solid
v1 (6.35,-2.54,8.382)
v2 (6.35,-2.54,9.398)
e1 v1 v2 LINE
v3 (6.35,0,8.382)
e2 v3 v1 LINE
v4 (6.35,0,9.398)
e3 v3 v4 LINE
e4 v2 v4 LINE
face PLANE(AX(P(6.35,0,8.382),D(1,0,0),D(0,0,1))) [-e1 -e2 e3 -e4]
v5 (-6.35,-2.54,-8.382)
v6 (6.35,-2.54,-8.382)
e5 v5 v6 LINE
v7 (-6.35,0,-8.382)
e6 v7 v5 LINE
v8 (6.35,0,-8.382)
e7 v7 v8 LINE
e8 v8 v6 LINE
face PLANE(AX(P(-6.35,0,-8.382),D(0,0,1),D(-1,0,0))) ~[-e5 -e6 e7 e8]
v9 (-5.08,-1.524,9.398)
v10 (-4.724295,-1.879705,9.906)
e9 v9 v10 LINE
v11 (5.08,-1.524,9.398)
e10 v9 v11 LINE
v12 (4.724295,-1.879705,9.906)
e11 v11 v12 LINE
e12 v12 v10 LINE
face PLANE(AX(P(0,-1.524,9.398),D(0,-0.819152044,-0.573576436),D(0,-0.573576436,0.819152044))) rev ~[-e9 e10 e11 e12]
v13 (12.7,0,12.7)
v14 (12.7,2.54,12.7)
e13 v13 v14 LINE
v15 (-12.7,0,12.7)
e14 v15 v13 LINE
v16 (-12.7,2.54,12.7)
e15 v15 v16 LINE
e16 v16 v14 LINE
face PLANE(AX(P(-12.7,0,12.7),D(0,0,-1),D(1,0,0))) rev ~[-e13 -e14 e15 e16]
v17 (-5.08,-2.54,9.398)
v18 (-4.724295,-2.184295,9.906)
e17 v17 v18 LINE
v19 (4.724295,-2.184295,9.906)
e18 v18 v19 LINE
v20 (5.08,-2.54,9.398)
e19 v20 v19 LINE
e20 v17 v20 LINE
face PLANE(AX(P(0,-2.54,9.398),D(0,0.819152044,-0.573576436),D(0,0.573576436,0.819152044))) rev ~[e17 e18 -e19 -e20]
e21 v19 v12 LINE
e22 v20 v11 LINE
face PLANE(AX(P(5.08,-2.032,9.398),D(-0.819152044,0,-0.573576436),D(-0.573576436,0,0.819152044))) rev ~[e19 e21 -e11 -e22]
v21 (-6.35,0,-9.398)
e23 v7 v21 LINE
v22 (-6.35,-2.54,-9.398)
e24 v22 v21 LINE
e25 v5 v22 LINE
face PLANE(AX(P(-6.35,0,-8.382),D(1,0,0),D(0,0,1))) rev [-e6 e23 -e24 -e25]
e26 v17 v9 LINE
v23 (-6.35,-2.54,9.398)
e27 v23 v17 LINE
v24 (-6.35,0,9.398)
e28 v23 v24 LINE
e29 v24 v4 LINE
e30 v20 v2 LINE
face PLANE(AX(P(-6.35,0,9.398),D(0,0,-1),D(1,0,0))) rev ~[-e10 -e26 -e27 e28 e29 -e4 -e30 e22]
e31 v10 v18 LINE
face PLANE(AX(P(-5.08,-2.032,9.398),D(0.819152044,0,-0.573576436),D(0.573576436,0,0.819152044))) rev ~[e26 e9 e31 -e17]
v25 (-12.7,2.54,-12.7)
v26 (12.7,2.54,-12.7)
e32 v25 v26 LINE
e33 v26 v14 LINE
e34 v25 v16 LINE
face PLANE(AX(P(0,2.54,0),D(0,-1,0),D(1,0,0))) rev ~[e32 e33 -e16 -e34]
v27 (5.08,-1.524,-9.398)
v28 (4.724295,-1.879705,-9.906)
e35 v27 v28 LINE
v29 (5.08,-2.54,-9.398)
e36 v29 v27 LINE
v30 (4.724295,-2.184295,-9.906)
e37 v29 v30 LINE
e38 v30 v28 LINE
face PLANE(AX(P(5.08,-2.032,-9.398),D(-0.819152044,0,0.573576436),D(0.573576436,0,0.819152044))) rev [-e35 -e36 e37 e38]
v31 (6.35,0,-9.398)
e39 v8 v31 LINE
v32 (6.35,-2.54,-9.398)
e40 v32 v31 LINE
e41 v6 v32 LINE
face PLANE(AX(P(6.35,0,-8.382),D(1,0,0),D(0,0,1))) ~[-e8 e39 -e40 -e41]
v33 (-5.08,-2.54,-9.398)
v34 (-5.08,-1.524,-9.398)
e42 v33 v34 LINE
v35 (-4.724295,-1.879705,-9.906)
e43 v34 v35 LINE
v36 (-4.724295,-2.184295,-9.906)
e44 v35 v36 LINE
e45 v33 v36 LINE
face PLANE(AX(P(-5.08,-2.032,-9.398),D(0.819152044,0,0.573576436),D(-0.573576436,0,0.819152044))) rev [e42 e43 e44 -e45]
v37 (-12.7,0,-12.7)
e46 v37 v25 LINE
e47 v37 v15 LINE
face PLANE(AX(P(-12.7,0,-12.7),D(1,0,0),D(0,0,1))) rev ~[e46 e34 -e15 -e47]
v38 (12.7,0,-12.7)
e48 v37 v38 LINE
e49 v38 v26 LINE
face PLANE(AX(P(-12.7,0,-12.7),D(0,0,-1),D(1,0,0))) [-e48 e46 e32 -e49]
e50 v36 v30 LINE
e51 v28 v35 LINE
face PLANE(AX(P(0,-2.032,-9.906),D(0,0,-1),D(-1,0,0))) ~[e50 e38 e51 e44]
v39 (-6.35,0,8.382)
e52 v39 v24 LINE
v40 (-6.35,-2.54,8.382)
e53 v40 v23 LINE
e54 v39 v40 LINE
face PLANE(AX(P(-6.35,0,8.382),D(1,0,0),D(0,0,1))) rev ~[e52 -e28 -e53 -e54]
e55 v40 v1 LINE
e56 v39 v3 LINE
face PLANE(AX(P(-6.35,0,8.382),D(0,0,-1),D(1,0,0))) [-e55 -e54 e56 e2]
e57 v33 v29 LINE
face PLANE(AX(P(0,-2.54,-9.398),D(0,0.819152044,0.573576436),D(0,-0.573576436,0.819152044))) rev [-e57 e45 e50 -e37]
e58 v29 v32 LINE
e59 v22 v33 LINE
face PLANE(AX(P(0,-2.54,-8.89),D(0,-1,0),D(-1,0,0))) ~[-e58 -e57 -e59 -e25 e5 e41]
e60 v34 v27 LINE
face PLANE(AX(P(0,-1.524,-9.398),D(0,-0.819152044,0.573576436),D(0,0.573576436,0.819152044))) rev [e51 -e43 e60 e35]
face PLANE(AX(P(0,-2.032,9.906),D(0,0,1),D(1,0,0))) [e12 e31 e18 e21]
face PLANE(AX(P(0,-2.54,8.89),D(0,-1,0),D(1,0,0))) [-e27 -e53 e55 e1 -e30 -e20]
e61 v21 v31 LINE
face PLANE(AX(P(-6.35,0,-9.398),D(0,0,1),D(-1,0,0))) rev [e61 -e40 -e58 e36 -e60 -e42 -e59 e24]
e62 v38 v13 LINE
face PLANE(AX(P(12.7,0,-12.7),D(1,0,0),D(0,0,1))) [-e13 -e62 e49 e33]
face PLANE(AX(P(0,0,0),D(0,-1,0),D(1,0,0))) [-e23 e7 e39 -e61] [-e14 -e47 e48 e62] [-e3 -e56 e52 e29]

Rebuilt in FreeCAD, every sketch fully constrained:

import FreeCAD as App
import Part
import Sketcher
from FreeCAD import Vector
Q = App.Units.Quantity


def add_polygon(sketch, points):
    """Adds a closed chain of lines whose ends are joined by coincident constraints."""
    first, n = sketch.GeometryCount, len(points)
    for a, b in zip(points, points[1:] + points[:1]):
        sketch.addGeometry(Part.LineSegment(App.Vector(*a, 0), App.Vector(*b, 0)), False)
    for i in range(n):
        sketch.addConstraint(Sketcher.Constraint("Coincident", first + i, 2, first + (i + 1) % n, 1))

doc = App.newDocument("Part")
body = doc.addObject("PartDesign::Body", "Body")

# Sketch on XZ plane
sketch1 = body.newObject("Sketcher::SketchObject", "Sketch")
sketch1.AttachmentSupport = (doc.getObject("XZ_Plane"), [""])
sketch1.MapMode = "FlatFace"
add_polygon(sketch1, [(-6.3, 9.4), (-6.3, 8.4), (6.3, 8.4), (6.3, 9.4)])  # lines 0-3
sketch1.addConstraint([
    Sketcher.Constraint("Vertical", 0),
    Sketcher.Constraint("Horizontal", 1),
    Sketcher.Constraint("Vertical", 2),
    Sketcher.Constraint("Horizontal", 3),
    Sketcher.Constraint("DistanceX", 1, 1, 1, 2, Q("0.5 in")),
    Sketcher.Constraint("DistanceY", 0, 2, 0, 1, Q("0.04 in")),
    Sketcher.Constraint("DistanceX", 0, 2, -1, 1, Q("0.25 in")),
    Sketcher.Constraint("DistanceY", -1, 1, 0, 2, Q("0.33 in")),
])
pad1 = body.newObject("PartDesign::Pad", "Pad")
pad1.Profile = sketch1
pad1.Type = "TwoLengths"
pad1.Length = Q("0.1 in")
pad1.Length2 = Q("0.1 in")

# Sketch on XZ plane
sketch2 = body.newObject("Sketcher::SketchObject", "Sketch001")
sketch2.AttachmentSupport = (doc.getObject("XZ_Plane"), [""])
sketch2.MapMode = "FlatFace"
add_polygon(sketch2, [(-12.7, 12.7), (-12.7, -12.7), (12.7, -12.7), (12.7, 12.7)])  # lines 0-3
add_polygon(sketch2, [(6.3, 8.4), (-6.3, 8.4), (-6.3, 9.4), (6.3, 9.4)])  # lines 4-7
sketch2.addConstraint([
    Sketcher.Constraint("Vertical", 0),
    Sketcher.Constraint("Horizontal", 1),
    Sketcher.Constraint("Vertical", 2),
    Sketcher.Constraint("Horizontal", 3),
    Sketcher.Constraint("Horizontal", 4),
    Sketcher.Constraint("Vertical", 5),
    Sketcher.Constraint("Horizontal", 6),
    Sketcher.Constraint("Vertical", 7),
    Sketcher.Constraint("Symmetric", 0, 2, 2, 2, -1, 1),
    Sketcher.Constraint("Equal", 3, 0),
    Sketcher.Constraint("DistanceX", 1, 1, 1, 2, Q("1 in")),
    Sketcher.Constraint("DistanceX", 4, 2, 4, 1, Q("0.5 in")),
    Sketcher.Constraint("DistanceY", 5, 1, 5, 2, Q("0.04 in")),
    Sketcher.Constraint("DistanceX", 4, 2, -1, 1, Q("0.25 in")),
    Sketcher.Constraint("DistanceY", -1, 1, 4, 2, Q("0.33 in")),
])
pad2 = body.newObject("PartDesign::Pad", "Pad001")
pad2.Profile = sketch2
pad2.Length = Q("0.1 in")
pad2.Reversed = True

# Sketch on XY plane
sketch3 = body.newObject("Sketcher::SketchObject", "Sketch002")
sketch3.AttachmentSupport = (doc.getObject("XY_Plane"), [""])
sketch3.MapMode = "FlatFace"
sketch3.AttachmentOffset = App.Placement(Vector(0, 0, 0.37 * 25.4), App.Rotation())
add_polygon(sketch3, [(-5.1, -1.5), (-5.1, -2.5), (5.1, -2.5), (5.1, -1.5)])  # lines 0-3
sketch3.addConstraint([
    Sketcher.Constraint("Vertical", 0),
    Sketcher.Constraint("Horizontal", 1),
    Sketcher.Constraint("Vertical", 2),
    Sketcher.Constraint("Horizontal", 3),
    Sketcher.Constraint("DistanceX", 1, 1, 1, 2, Q("0.4 in")),
    Sketcher.Constraint("DistanceY", 0, 2, 0, 1, Q("0.04 in")),
    Sketcher.Constraint("DistanceX", 0, 2, -1, 1, Q("0.2 in")),
    Sketcher.Constraint("DistanceY", 0, 2, -1, 1, Q("0.1 in")),
])
pad3 = body.newObject("PartDesign::Pad", "Pad002")
pad3.Profile = sketch3
pad3.Length = Q("0.02 in")
pad3.TaperAngle = -35
body2 = doc.addObject("PartDesign::Body", "Body001")
doc.recompute()

body2.BaseFeature = body
doc.recompute()

mirroring = doc.addObject("Part::Mirroring", "Mirroring")
mirroring.Source = body
mirroring.Base = Vector(0, 0, 0)
mirroring.Normal = Vector(0, 0, 1)
body3 = doc.addObject("PartDesign::Body", "Body002")
body3.BaseFeature = mirroring
boolean = body2.newObject("PartDesign::Boolean", "Boolean")
boolean.Type = "Fuse"
boolean.addObjects([body3])
doc.recompute()
mirroring.Visibility = False

doc.recompute()
